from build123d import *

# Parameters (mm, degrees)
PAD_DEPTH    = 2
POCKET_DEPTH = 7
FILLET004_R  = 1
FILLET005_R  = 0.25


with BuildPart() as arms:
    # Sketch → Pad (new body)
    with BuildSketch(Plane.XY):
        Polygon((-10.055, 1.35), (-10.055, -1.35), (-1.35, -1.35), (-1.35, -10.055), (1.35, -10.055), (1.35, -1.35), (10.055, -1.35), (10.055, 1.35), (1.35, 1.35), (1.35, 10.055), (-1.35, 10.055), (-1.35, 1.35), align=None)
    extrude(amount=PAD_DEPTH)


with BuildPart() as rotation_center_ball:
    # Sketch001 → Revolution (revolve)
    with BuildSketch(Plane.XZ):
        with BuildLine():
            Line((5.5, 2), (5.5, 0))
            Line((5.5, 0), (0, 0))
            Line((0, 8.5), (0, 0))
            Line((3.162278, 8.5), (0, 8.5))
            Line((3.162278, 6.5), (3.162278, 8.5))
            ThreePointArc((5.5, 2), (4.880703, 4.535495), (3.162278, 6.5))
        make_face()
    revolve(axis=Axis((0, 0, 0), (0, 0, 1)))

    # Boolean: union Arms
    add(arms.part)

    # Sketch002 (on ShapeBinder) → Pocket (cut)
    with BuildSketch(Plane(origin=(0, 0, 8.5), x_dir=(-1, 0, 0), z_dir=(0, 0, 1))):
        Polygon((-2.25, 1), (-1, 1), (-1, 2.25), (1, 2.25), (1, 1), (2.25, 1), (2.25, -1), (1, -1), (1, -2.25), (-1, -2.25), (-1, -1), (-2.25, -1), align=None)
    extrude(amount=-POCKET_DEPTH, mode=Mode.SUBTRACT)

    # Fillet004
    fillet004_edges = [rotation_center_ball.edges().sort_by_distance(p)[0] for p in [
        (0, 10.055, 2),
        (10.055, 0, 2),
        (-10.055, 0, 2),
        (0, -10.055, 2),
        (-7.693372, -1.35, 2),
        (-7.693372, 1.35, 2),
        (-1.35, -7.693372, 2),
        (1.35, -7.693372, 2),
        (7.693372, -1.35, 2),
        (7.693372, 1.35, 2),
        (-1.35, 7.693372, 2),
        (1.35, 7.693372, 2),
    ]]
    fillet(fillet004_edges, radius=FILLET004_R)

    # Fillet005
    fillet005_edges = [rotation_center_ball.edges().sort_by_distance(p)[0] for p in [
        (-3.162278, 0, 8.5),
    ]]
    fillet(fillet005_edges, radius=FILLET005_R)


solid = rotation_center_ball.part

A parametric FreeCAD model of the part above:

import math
import FreeCAD as App
import Part
import Sketcher
Q = App.Units.Quantity


def edges_at(feature, points):
    """Names of the edges that pass closest to the given points."""
    edges = feature.Shape.Edges
    near = lambda p: min(range(len(edges)), key=lambda i: edges[i].distToShape(Part.Vertex(*p))[0])
    return sorted({f"Edge{near(p) + 1}" for p in points})

doc = App.newDocument("Part")
body = doc.addObject("PartDesign::Body", "Body")

sketch1 = body.newObject("Sketcher::SketchObject", "Sketch")
sketch1.AttachmentSupport = (doc.getObject("XY_Plane"), [""])
sketch1.MapMode = "FlatFace"
sketch1.addGeometry(Part.LineSegment(App.Vector(-10.1, 1.4, 0), App.Vector(-10.1, -1.4, 0)), False)
sketch1.addGeometry(Part.LineSegment(App.Vector(-10.1, -1.4, 0), App.Vector(-1.4, -1.4, 0)), False)
sketch1.addGeometry(Part.LineSegment(App.Vector(-1.4, -1.4, 0), App.Vector(-1.4, -10.1, 0)), False)
sketch1.addGeometry(Part.LineSegment(App.Vector(-1.4, -10.1, 0), App.Vector(1.4, -10.1, 0)), False)
sketch1.addGeometry(Part.LineSegment(App.Vector(1.4, -10.1, 0), App.Vector(1.4, -1.4, 0)), False)
sketch1.addGeometry(Part.LineSegment(App.Vector(1.4, -1.4, 0), App.Vector(10.1, -1.4, 0)), False)
sketch1.addGeometry(Part.LineSegment(App.Vector(10.1, -1.4, 0), App.Vector(10.1, 1.4, 0)), False)
sketch1.addGeometry(Part.LineSegment(App.Vector(10.1, 1.4, 0), App.Vector(1.4, 1.4, 0)), False)
sketch1.addGeometry(Part.LineSegment(App.Vector(1.4, 1.4, 0), App.Vector(1.4, 10.1, 0)), False)
sketch1.addGeometry(Part.LineSegment(App.Vector(1.4, 10.1, 0), App.Vector(-1.4, 10.1, 0)), False)
sketch1.addGeometry(Part.LineSegment(App.Vector(-1.4, 10.1, 0), App.Vector(-1.4, 1.4, 0)), False)
sketch1.addGeometry(Part.LineSegment(App.Vector(-1.4, 1.4, 0), App.Vector(-10.1, 1.4, 0)), False)
sketch1.addConstraint(Sketcher.Constraint("Coincident", 0, 2, 1, 1))
sketch1.addConstraint(Sketcher.Constraint("Coincident", 1, 2, 2, 1))
sketch1.addConstraint(Sketcher.Constraint("Coincident", 2, 2, 3, 1))
sketch1.addConstraint(Sketcher.Constraint("Coincident", 3, 2, 4, 1))
sketch1.addConstraint(Sketcher.Constraint("Coincident", 4, 2, 5, 1))
sketch1.addConstraint(Sketcher.Constraint("Coincident", 5, 2, 6, 1))
sketch1.addConstraint(Sketcher.Constraint("Coincident", 6, 2, 7, 1))
sketch1.addConstraint(Sketcher.Constraint("Coincident", 7, 2, 8, 1))
sketch1.addConstraint(Sketcher.Constraint("Coincident", 8, 2, 9, 1))
sketch1.addConstraint(Sketcher.Constraint("Coincident", 9, 2, 10, 1))
sketch1.addConstraint(Sketcher.Constraint("Coincident", 10, 2, 11, 1))
sketch1.addConstraint(Sketcher.Constraint("Coincident", 11, 2, 0, 1))
sketch1.addConstraint(Sketcher.Constraint("Vertical", 0))
sketch1.addConstraint(Sketcher.Constraint("Horizontal", 1))
sketch1.addConstraint(Sketcher.Constraint("Vertical", 2))
sketch1.addConstraint(Sketcher.Constraint("Horizontal", 3))
sketch1.addConstraint(Sketcher.Constraint("Vertical", 4))
sketch1.addConstraint(Sketcher.Constraint("Horizontal", 5))
sketch1.addConstraint(Sketcher.Constraint("Vertical", 6))
sketch1.addConstraint(Sketcher.Constraint("Horizontal", 7))
sketch1.addConstraint(Sketcher.Constraint("Vertical", 8))
sketch1.addConstraint(Sketcher.Constraint("Horizontal", 9))
sketch1.addConstraint(Sketcher.Constraint("Vertical", 10))
sketch1.addConstraint(Sketcher.Constraint("Horizontal", 11))
sketch1.addConstraint(Sketcher.Constraint("Symmetric", 0, 2, 6, 2, -1, 1))
sketch1.addConstraint(Sketcher.Constraint("Symmetric", 2, 2, 8, 2, -1, 1))
sketch1.addConstraint(Sketcher.Constraint("Symmetric", 4, 2, 10, 2, -1, 1))
sketch1.addConstraint(Sketcher.Constraint("Symmetric", 1, 2, 4, 2, -2))
sketch1.addConstraint(Sketcher.Constraint("Equal", 9, 0))
sketch1.addConstraint(Sketcher.Constraint("Equal", 11, 2))
sketch1.addConstraint(Sketcher.Constraint("DistanceX", 3, 1, 3, 2, Q("2.7 mm")))
sketch1.addConstraint(Sketcher.Constraint("DistanceX", 1, 1, 1, 2, Q("8.705 mm")))
pad1 = body.newObject("PartDesign::Pad", "Pad")
pad1.Profile = sketch1
pad1.Length = 2
body2 = doc.addObject("PartDesign::Body", "Body001")

sketch2 = body2.newObject("Sketcher::SketchObject", "Sketch001")
sketch2.AttachmentSupport = (doc.getObject("XZ_Plane001"), [""])
sketch2.MapMode = "FlatFace"
sketch2.addGeometry(Part.LineSegment(App.Vector(5.5, 0, 0), App.Vector(5.5, 2, 0)), False)
sketch2.addGeometry(Part.ArcOfCircle(Part.Circle(App.Vector(0, 2, 0), App.Vector(0, 0, 1), 5.5), math.radians(0), math.radians(55)), False)
sketch2.addGeometry(Part.LineSegment(App.Vector(3.2, 6.5, 0), App.Vector(3.2, 8.5, 0)), False)
sketch2.addGeometry(Part.LineSegment(App.Vector(3.2, 8.5, 0), App.Vector(0, 8.5, 0)), False)
sketch2.addGeometry(Part.LineSegment(App.Vector(0, 8.5, 0), App.Vector(0, 0, 0)), False)
sketch2.addGeometry(Part.LineSegment(App.Vector(0, 0, 0), App.Vector(5.5, 0, 0)), False)
sketch2.addConstraint(Sketcher.Constraint("Tangent", 0, 2, 1, 1))
sketch2.addConstraint(Sketcher.Constraint("Coincident", 1, 2, 2, 1))
sketch2.addConstraint(Sketcher.Constraint("Coincident", 2, 2, 3, 1))
sketch2.addConstraint(Sketcher.Constraint("Coincident", 3, 2, 4, 1))
sketch2.addConstraint(Sketcher.Constraint("Coincident", 4, 2, 5, 1))
sketch2.addConstraint(Sketcher.Constraint("Coincident", 5, 2, 0, 1))
sketch2.addConstraint(Sketcher.Constraint("Vertical", 0))
sketch2.addConstraint(Sketcher.Constraint("Vertical", 2))
sketch2.addConstraint(Sketcher.Constraint("Horizontal", 3))
sketch2.addConstraint(Sketcher.Constraint("Vertical", 4))
sketch2.addConstraint(Sketcher.Constraint("Horizontal", 5))
sketch2.addConstraint(Sketcher.Constraint("Coincident", 4, 2, -1, 1))
sketch2.addConstraint(Sketcher.Constraint("Equal", 0, 2))
sketch2.addConstraint(Sketcher.Constraint("DistanceY", 0, 1, 0, 2, Q("2 mm")))
sketch2.addConstraint(Sketcher.Constraint("DistanceX", 5, 1, 5, 2, Q("5.5 mm")))
sketch2.addConstraint(Sketcher.Constraint("DistanceY", 4, 2, 4, 1, Q("8.5 mm")))
sketch2.addConstraint(Sketcher.Constraint("Radius", 1, Q("5.500003 mm")))
revolution = body2.newObject("PartDesign::Revolution", "Revolution")
revolution.Profile = sketch2
revolution.ReferenceAxis = (sketch2, ["V_Axis"])
revolution.Angle = 360
doc.recompute()

boolean = body2.newObject("PartDesign::Boolean", "Boolean")
boolean.Type = "Fuse"
boolean.addObjects([body])

sketch3 = body2.newObject("Sketcher::SketchObject", "Sketch002")
sketch3.AttachmentSupport = (doc.getObject("XY_Plane001"), [""])
sketch3.MapMode = "FlatFace"
sketch3.AttachmentOffset = App.Placement(App.Vector(0, 0, 8.5), App.Rotation())
sketch3.addGeometry(Part.LineSegment(App.Vector(1, -1, 0), App.Vector(2.2, -1, 0)), False)
sketch3.addGeometry(Part.LineSegment(App.Vector(2.2, -1, 0), App.Vector(2.2, 1, 0)), False)
sketch3.addGeometry(Part.LineSegment(App.Vector(2.2, 1, 0), App.Vector(1, 1, 0)), False)
sketch3.addGeometry(Part.LineSegment(App.Vector(1, 1, 0), App.Vector(1, 2.2, 0)), False)
sketch3.addGeometry(Part.LineSegment(App.Vector(1, 2.2, 0), App.Vector(-1, 2.2, 0)), False)
sketch3.addGeometry(Part.LineSegment(App.Vector(-1, 2.2, 0), App.Vector(-1, 1, 0)), False)
sketch3.addGeometry(Part.LineSegment(App.Vector(-1, 1, 0), App.Vector(-2.2, 1, 0)), False)
sketch3.addGeometry(Part.LineSegment(App.Vector(-2.2, 1, 0), App.Vector(-2.2, -1, 0)), False)
sketch3.addGeometry(Part.LineSegment(App.Vector(-2.2, -1, 0), App.Vector(-1, -1, 0)), False)
sketch3.addGeometry(Part.LineSegment(App.Vector(-1, -1, 0), App.Vector(-1, -2.2, 0)), False)
sketch3.addGeometry(Part.LineSegment(App.Vector(-1, -2.2, 0), App.Vector(1, -2.2, 0)), False)
sketch3.addGeometry(Part.LineSegment(App.Vector(1, -2.2, 0), App.Vector(1, -1, 0)), False)
sketch3.addConstraint(Sketcher.Constraint("Coincident", 0, 2, 1, 1))
sketch3.addConstraint(Sketcher.Constraint("Coincident", 1, 2, 2, 1))
sketch3.addConstraint(Sketcher.Constraint("Coincident", 2, 2, 3, 1))
sketch3.addConstraint(Sketcher.Constraint("Coincident", 3, 2, 4, 1))
sketch3.addConstraint(Sketcher.Constraint("Coincident", 4, 2, 5, 1))
sketch3.addConstraint(Sketcher.Constraint("Coincident", 5, 2, 6, 1))
sketch3.addConstraint(Sketcher.Constraint("Coincident", 6, 2, 7, 1))
sketch3.addConstraint(Sketcher.Constraint("Coincident", 7, 2, 8, 1))
sketch3.addConstraint(Sketcher.Constraint("Coincident", 8, 2, 9, 1))
sketch3.addConstraint(Sketcher.Constraint("Coincident", 9, 2, 10, 1))
sketch3.addConstraint(Sketcher.Constraint("Coincident", 10, 2, 11, 1))
sketch3.addConstraint(Sketcher.Constraint("Coincident", 11, 2, 0, 1))
sketch3.addConstraint(Sketcher.Constraint("Horizontal", 0))
sketch3.addConstraint(Sketcher.Constraint("Vertical", 1))
sketch3.addConstraint(Sketcher.Constraint("Horizontal", 2))
sketch3.addConstraint(Sketcher.Constraint("Vertical", 3))
sketch3.addConstraint(Sketcher.Constraint("Horizontal", 4))
sketch3.addConstraint(Sketcher.Constraint("Vertical", 5))
sketch3.addConstraint(Sketcher.Constraint("Horizontal", 6))
sketch3.addConstraint(Sketcher.Constraint("Vertical", 7))
sketch3.addConstraint(Sketcher.Constraint("Horizontal", 8))
sketch3.addConstraint(Sketcher.Constraint("Vertical", 9))
sketch3.addConstraint(Sketcher.Constraint("Horizontal", 10))
sketch3.addConstraint(Sketcher.Constraint("Vertical", 11))
sketch3.addConstraint(Sketcher.Constraint("Symmetric", 0, 2, 6, 2, -1, 1))
sketch3.addConstraint(Sketcher.Constraint("Symmetric", 2, 2, 8, 2, -1, 1))
sketch3.addConstraint(Sketcher.Constraint("Symmetric", 4, 2, 10, 2, -1, 1))
sketch3.addConstraint(Sketcher.Constraint("Symmetric", 2, 2, 5, 2, -2))
sketch3.addConstraint(Sketcher.Constraint("Equal", 10, 1))
sketch3.addConstraint(Sketcher.Constraint("Equal", 8, 3))
sketch3.addConstraint(Sketcher.Constraint("DistanceX", 4, 2, 4, 1, Q("2 mm")))
sketch3.addConstraint(Sketcher.Constraint("DistanceX", 0, 1, 0, 2, Q("1.25 mm")))
pocket1 = body2.newObject("PartDesign::Pocket", "Pocket")
pocket1.Profile = sketch3
pocket1.Length = 7
doc.recompute()

fillet = body2.newObject("PartDesign::Fillet", "Fillet")
fillet.Base = (pocket1, edges_at(pocket1, [
    (0, 10.055, 2),
    (10.055, 0, 2),
    (-10.055, 0, 2),
    (0, -10.055, 2),
    (-7.693, -1.35, 2),
    (-7.693, 1.35, 2),
    (-1.35, -7.693, 2),
    (1.35, -7.693, 2),
    (7.693, -1.35, 2),
    (7.693, 1.35, 2),
    (-1.35, 7.693, 2),
    (1.35, 7.693, 2),
]))
fillet.Radius = 1
doc.recompute()

fillet2 = body2.newObject("PartDesign::Fillet", "Fillet001")
fillet2.Base = (fillet, edges_at(fillet, [(-3.162, 0, 8.5)]))
fillet2.Radius = 0.25

doc.recompute()
